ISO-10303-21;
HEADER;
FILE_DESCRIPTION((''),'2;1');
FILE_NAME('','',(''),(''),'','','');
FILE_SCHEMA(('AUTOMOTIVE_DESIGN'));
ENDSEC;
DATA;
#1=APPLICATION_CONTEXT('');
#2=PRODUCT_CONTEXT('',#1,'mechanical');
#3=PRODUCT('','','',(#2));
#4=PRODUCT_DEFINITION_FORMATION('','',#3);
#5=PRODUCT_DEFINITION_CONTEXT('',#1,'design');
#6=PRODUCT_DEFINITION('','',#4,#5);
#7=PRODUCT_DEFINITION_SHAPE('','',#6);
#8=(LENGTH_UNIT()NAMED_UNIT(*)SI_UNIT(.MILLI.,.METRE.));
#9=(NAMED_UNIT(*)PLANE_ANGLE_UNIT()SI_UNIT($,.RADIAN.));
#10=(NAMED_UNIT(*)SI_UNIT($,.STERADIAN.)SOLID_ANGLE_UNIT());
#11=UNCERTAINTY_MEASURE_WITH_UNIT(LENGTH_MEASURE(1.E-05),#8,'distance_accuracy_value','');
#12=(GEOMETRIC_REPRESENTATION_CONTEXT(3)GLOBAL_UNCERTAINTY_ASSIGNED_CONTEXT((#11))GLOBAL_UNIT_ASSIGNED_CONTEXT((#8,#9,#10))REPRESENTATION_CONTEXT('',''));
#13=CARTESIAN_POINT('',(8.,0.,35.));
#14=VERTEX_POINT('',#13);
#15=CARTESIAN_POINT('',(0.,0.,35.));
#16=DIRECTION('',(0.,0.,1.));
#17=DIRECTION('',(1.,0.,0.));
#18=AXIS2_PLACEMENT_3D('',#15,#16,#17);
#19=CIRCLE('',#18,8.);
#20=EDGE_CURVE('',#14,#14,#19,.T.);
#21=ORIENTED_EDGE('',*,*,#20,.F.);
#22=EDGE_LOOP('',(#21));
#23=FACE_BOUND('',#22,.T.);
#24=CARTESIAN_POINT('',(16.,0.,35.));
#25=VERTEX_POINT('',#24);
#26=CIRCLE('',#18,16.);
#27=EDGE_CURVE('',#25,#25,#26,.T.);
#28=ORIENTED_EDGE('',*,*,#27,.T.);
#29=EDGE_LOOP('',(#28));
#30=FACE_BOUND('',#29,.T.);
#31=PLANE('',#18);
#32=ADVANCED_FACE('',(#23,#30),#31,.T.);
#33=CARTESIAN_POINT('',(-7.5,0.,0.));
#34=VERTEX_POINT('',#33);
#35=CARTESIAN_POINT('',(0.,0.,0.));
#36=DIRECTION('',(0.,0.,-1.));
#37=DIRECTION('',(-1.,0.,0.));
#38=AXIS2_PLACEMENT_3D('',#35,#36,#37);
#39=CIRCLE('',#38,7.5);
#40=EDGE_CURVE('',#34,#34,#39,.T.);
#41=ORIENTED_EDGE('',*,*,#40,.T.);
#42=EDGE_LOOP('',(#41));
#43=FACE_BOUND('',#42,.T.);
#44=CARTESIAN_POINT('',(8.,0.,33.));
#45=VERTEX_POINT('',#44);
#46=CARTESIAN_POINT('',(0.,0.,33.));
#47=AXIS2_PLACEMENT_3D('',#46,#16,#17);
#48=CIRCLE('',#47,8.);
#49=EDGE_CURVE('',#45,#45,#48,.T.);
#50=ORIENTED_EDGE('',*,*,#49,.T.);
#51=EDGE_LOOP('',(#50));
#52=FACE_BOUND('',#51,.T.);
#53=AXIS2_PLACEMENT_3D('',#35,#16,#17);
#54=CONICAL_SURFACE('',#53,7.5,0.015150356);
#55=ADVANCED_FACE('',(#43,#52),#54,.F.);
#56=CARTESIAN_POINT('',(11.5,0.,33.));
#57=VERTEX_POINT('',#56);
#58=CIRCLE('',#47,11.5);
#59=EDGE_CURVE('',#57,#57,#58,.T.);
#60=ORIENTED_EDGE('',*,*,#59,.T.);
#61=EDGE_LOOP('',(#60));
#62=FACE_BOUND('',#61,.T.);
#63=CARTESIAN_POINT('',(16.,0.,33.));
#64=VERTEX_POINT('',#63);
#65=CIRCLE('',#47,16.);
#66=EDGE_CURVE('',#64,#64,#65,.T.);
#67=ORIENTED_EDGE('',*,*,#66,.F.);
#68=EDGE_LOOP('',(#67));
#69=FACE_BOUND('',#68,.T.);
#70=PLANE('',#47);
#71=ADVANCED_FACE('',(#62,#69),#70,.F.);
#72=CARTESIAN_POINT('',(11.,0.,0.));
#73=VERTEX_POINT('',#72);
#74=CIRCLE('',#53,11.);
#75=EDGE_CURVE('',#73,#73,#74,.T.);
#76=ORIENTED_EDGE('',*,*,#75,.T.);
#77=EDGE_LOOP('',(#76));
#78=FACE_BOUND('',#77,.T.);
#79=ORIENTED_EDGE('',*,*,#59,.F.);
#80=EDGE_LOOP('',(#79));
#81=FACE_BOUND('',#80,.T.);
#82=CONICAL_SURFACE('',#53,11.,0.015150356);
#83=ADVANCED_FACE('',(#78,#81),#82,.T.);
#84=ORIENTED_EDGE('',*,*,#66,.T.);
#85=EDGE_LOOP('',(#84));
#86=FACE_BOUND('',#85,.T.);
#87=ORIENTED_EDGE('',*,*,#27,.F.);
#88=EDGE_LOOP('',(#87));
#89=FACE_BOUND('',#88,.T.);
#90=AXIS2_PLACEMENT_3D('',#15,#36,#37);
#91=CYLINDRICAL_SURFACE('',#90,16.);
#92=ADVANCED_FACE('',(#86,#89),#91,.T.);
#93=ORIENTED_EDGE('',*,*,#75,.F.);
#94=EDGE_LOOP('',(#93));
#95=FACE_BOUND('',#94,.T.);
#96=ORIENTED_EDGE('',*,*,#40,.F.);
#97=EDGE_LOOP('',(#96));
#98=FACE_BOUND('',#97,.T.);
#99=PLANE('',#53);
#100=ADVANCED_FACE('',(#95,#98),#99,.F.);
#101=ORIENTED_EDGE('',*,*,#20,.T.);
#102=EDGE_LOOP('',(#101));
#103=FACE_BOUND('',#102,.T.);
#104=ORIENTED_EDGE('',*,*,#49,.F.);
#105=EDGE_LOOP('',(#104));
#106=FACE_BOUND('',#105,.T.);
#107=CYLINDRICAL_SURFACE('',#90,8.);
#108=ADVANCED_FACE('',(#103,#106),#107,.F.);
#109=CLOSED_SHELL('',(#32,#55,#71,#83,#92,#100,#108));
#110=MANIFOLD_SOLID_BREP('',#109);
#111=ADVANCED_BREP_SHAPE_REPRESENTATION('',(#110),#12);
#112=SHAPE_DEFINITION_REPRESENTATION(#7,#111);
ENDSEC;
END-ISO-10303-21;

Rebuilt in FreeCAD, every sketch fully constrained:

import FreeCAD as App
import Part
import Sketcher
from FreeCAD import Vector
Q = App.Units.Quantity

doc = App.newDocument("Part")
params = doc.addObject("Spreadsheet::Sheet", "Params")
for row, (alias, value) in enumerate([
    ("sketch1_diameter", "22 mm"),
    ("sketch2_diameter", "23 mm"),
    ("sketch3_diameter", "15 mm"),
    ("sketch4_diameter", "16 mm"),
    ("sketch5_diameter", "32 mm"),
    ("sketch5_diameter2", "16 mm"),
    ("pad1_length", "2 mm"),
], start=1):
    params.set(f"A{row}", alias)
    params.set(f"B{row}", "=" + value)
    params.setAlias(f"B{row}", alias)

body = doc.addObject("PartDesign::Body", "Body")

sketch1 = body.newObject("Sketcher::SketchObject", "Sketch")
sketch1.AttachmentSupport = (doc.getObject("XY_Plane"), [""])
sketch1.MapMode = "FlatFace"
sketch1.addGeometry(Part.Circle(Vector(0, 0, 0), Vector(0, 0, 1), 11), False)
sketch1.addConstraint(Sketcher.Constraint("Coincident", 0, 3, -1, 1))
sketch1.addConstraint(Sketcher.Constraint("Diameter", 0, Q("22 mm")))
sketch1.setExpression("Constraints[1]", "Params.sketch1_diameter")

sketch2 = body.newObject("Sketcher::SketchObject", "Sketch001")
sketch2.AttachmentSupport = (doc.getObject("XY_Plane"), [""])
sketch2.MapMode = "FlatFace"
sketch2.AttachmentOffset = App.Placement(Vector(0, 0, 33), App.Rotation())
sketch2.addGeometry(Part.Circle(Vector(0, 0, 0), Vector(0, 0, 1), 11.5), False)
sketch2.addConstraint(Sketcher.Constraint("Coincident", 0, 3, -1, 1))
sketch2.addConstraint(Sketcher.Constraint("Diameter", 0, Q("23 mm")))
sketch2.setExpression("Constraints[1]", "Params.sketch2_diameter")

additiveloft = body.newObject("PartDesign::AdditiveLoft", "AdditiveLoft")
additiveloft.Profile = sketch1
additiveloft.Sections = [sketch2]

sketch3 = body.newObject("Sketcher::SketchObject", "Sketch002")
sketch3.AttachmentSupport = (doc.getObject("XY_Plane"), [""])
sketch3.MapMode = "FlatFace"
sketch3.addGeometry(Part.Circle(Vector(0, 0, 0), Vector(0, 0, 1), 7.5), False)
sketch3.addConstraint(Sketcher.Constraint("Coincident", 0, 3, -1, 1))
sketch3.addConstraint(Sketcher.Constraint("Diameter", 0, Q("15 mm")))
sketch3.setExpression("Constraints[1]", "Params.sketch3_diameter")

sketch4 = body.newObject("Sketcher::SketchObject", "Sketch003")
sketch4.AttachmentSupport = (doc.getObject("XY_Plane"), [""])
sketch4.MapMode = "FlatFace"
sketch4.AttachmentOffset = App.Placement(Vector(0, 0, 33), App.Rotation())
sketch4.addGeometry(Part.Circle(Vector(0, 0, 0), Vector(0, 0, 1), 8), False)
sketch4.addConstraint(Sketcher.Constraint("Coincident", 0, 3, -1, 1))
sketch4.addConstraint(Sketcher.Constraint("Diameter", 0, Q("16 mm")))
sketch4.setExpression("Constraints[1]", "Params.sketch4_diameter")

subtractiveloft = body.newObject("PartDesign::SubtractiveLoft", "SubtractiveLoft")
subtractiveloft.Profile = sketch3
subtractiveloft.Sections = [sketch4]

sketch5 = body.newObject("Sketcher::SketchObject", "Sketch004")
sketch5.AttachmentSupport = (doc.getObject("XY_Plane"), [""])
sketch5.MapMode = "FlatFace"
sketch5.AttachmentOffset = App.Placement(Vector(0, 0, 33), App.Rotation())
sketch5.addGeometry(Part.Circle(Vector(0, 0, 0), Vector(0, 0, 1), 16), False)
sketch5.addGeometry(Part.Circle(Vector(0, 0, 0), Vector(0, 0, 1), 8), False)
sketch5.addConstraint(Sketcher.Constraint("Coincident", 0, 3, -1, 1))
sketch5.addConstraint(Sketcher.Constraint("Coincident", 1, 3, -1, 1))
sketch5.addConstraint(Sketcher.Constraint("Diameter", 0, Q("32 mm")))
sketch5.addConstraint(Sketcher.Constraint("Diameter", 1, Q("16 mm")))
sketch5.setExpression("Constraints[2]", "Params.sketch5_diameter")
sketch5.setExpression("Constraints[3]", "Params.sketch5_diameter2")
pad1 = body.newObject("PartDesign::Pad", "Pad")
pad1.Profile = sketch5
pad1.setExpression("Length", "Params.pad1_length")

doc.recompute()
